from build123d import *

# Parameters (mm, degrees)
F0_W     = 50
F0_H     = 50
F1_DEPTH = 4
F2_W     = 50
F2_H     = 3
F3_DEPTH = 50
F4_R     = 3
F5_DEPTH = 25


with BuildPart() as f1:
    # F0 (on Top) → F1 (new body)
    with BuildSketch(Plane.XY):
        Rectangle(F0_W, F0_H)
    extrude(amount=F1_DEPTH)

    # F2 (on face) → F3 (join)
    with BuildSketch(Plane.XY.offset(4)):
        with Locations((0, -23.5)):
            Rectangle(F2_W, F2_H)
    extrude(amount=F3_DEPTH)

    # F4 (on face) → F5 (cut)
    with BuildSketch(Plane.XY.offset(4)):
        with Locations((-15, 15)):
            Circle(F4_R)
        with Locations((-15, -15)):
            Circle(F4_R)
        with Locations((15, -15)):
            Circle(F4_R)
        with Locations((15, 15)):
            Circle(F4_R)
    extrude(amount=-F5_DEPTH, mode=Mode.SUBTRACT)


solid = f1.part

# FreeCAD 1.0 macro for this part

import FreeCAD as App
import Part
import Sketcher

doc = App.newDocument("Part")
body = doc.addObject("PartDesign::Body", "Body")

# Sketch on XY plane
sketch1 = doc.addObject("Sketcher::SketchObject", "Sketch")
body.addObject(sketch1)
sketch1.AttachmentSupport = (doc.XY_Plane, [""])
sketch1.MapMode = "FlatFace"
sketch1.addGeometry([
    Part.LineSegment(App.Vector(-25, 25, 0), App.Vector(-25, -25, 0)),
    Part.LineSegment(App.Vector(-25, -25, 0), App.Vector(25, -25, 0)),
    Part.LineSegment(App.Vector(25, -25, 0), App.Vector(25, 25, 0)),
    Part.LineSegment(App.Vector(25, 25, 0), App.Vector(-25, 25, 0)),
], False)
sketch1.addConstraint([
    Sketcher.Constraint("Coincident", 0, 2, 1, 1),
    Sketcher.Constraint("Coincident", 1, 2, 2, 1),
    Sketcher.Constraint("Coincident", 2, 2, 3, 1),
    Sketcher.Constraint("Coincident", 3, 2, 0, 1),
    Sketcher.Constraint("Vertical", 0),
    Sketcher.Constraint("Horizontal", 1),
    Sketcher.Constraint("Vertical", 2),
    Sketcher.Constraint("Horizontal", 3),
    Sketcher.Constraint("Symmetric", 0, 2, 2, 2, -1, 1),
    Sketcher.Constraint("Equal", 3, 0),
    Sketcher.Constraint("DistanceX", 1, 1, 1, 2, 50.0),
])
pad1 = doc.addObject("PartDesign::Pad", "Pad")
body.addObject(pad1)
pad1.Profile = sketch1
pad1.Length = 4

# Sketch on XY plane
sketch2 = doc.addObject("Sketcher::SketchObject", "Sketch001")
body.addObject(sketch2)
sketch2.AttachmentSupport = (doc.XY_Plane, [""])
sketch2.MapMode = "FlatFace"
sketch2.AttachmentOffset = App.Placement(App.Vector(0, 0, 4), App.Rotation())
sketch2.addGeometry([
    Part.LineSegment(App.Vector(-25, -22, 0), App.Vector(-25, -25, 0)),
    Part.LineSegment(App.Vector(-25, -25, 0), App.Vector(25, -25, 0)),
    Part.LineSegment(App.Vector(25, -25, 0), App.Vector(25, -22, 0)),
    Part.LineSegment(App.Vector(25, -22, 0), App.Vector(-25, -22, 0)),
], False)
sketch2.addConstraint([
    Sketcher.Constraint("Coincident", 0, 2, 1, 1),
    Sketcher.Constraint("Coincident", 1, 2, 2, 1),
    Sketcher.Constraint("Coincident", 2, 2, 3, 1),
    Sketcher.Constraint("Coincident", 3, 2, 0, 1),
    Sketcher.Constraint("Vertical", 0),
    Sketcher.Constraint("Horizontal", 1),
    Sketcher.Constraint("Vertical", 2),
    Sketcher.Constraint("Horizontal", 3),
    Sketcher.Constraint("DistanceX", 1, 1, 1, 2, 50.0),
    Sketcher.Constraint("DistanceY", 0, 2, 0, 1, 3.0),
    Sketcher.Constraint("DistanceX", 0, 2, -1, 1, 25.0),
    Sketcher.Constraint("DistanceY", 0, 2, -1, 1, 25.0),
])
pad2 = doc.addObject("PartDesign::Pad", "Pad001")
body.addObject(pad2)
pad2.Profile = sketch2
pad2.Length = 50

# Sketch on XY plane
sketch3 = doc.addObject("Sketcher::SketchObject", "Sketch002")
body.addObject(sketch3)
sketch3.AttachmentSupport = (doc.XY_Plane, [""])
sketch3.MapMode = "FlatFace"
sketch3.AttachmentOffset = App.Placement(App.Vector(0, 0, 4), App.Rotation())
sketch3.addGeometry([
    Part.Circle(App.Vector(-15, 15, 0), App.Vector(0, 0, 1), 3),
    Part.Circle(App.Vector(-15, -15, 0), App.Vector(0, 0, 1), 3),
    Part.Circle(App.Vector(15, -15, 0), App.Vector(0, 0, 1), 3),
    Part.Circle(App.Vector(15, 15, 0), App.Vector(0, 0, 1), 3),
], False)
sketch3.addConstraint([
    Sketcher.Constraint("Equal", 0, 1),
    Sketcher.Constraint("Equal", 1, 2),
    Sketcher.Constraint("Equal", 2, 3),
    Sketcher.Constraint("Symmetric", 0, 3, 2, 3, -1, 1),
    Sketcher.Constraint("Symmetric", 1, 3, 3, 3, -1, 1),
    Sketcher.Constraint("Symmetric", 1, 3, 2, 3, -2),
    Sketcher.Constraint("Diameter", 0, 6.0),
    Sketcher.Constraint("DistanceX", 0, 3, -1, 1, 15.0),
    Sketcher.Constraint("DistanceY", -1, 1, 0, 3, 15.0),
])
pocket1 = doc.addObject("PartDesign::Pocket", "Pocket")
body.addObject(pocket1)
pocket1.Profile = sketch3
pocket1.Length = 25

doc.recompute()
